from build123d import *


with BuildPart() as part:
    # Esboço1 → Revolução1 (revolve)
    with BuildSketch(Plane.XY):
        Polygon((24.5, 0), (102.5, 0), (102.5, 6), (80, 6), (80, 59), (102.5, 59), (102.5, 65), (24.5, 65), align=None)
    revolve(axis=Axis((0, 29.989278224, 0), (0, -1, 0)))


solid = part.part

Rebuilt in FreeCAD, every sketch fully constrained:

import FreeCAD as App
import Part
import Sketcher

doc = App.newDocument("Part")
body = doc.addObject("PartDesign::Body", "Body")

# Sketch on XY plane
sketch1 = body.newObject("Sketcher::SketchObject", "Sketch")
sketch1.AttachmentSupport = (doc.getObject("XY_Plane"), [""])
sketch1.MapMode = "FlatFace"
sketch1.addGeometry([
    Part.LineSegment(App.Vector(24, 0, 0), App.Vector(102, 0, 0)),  # 0
    Part.LineSegment(App.Vector(102, 0, 0), App.Vector(102, 6, 0)),  # 1
    Part.LineSegment(App.Vector(102, 6, 0), App.Vector(80, 6, 0)),  # 2
    Part.LineSegment(App.Vector(80, 6, 0), App.Vector(80, 59, 0)),  # 3
    Part.LineSegment(App.Vector(80, 59, 0), App.Vector(102, 59, 0)),  # 4
    Part.LineSegment(App.Vector(102, 59, 0), App.Vector(102, 65, 0)),  # 5
    Part.LineSegment(App.Vector(102, 65, 0), App.Vector(24, 65, 0)),  # 6
    Part.LineSegment(App.Vector(24, 65, 0), App.Vector(24, 0, 0)),  # 7
], False)
sketch1.addConstraint([
    Sketcher.Constraint("Coincident", 0, 2, 1, 1),
    Sketcher.Constraint("Coincident", 1, 2, 2, 1),
    Sketcher.Constraint("Coincident", 2, 2, 3, 1),
    Sketcher.Constraint("Coincident", 3, 2, 4, 1),
    Sketcher.Constraint("Coincident", 4, 2, 5, 1),
    Sketcher.Constraint("Coincident", 5, 2, 6, 1),
    Sketcher.Constraint("Coincident", 6, 2, 7, 1),
    Sketcher.Constraint("Coincident", 7, 2, 0, 1),
    Sketcher.Constraint("Horizontal", 0),
    Sketcher.Constraint("Vertical", 1),
    Sketcher.Constraint("Horizontal", 2),
    Sketcher.Constraint("Vertical", 3),
    Sketcher.Constraint("Horizontal", 4),
    Sketcher.Constraint("Vertical", 5),
    Sketcher.Constraint("Horizontal", 6),
    Sketcher.Constraint("Vertical", 7),
    Sketcher.Constraint("PointOnObject", 0, 2, -1),
    Sketcher.Constraint("Vertical", 1, 2, 4, 2),
    Sketcher.Constraint("Equal", 1, 5),
    Sketcher.Constraint("DistanceX", 0, 1, 0, 2, 78.0),
    Sketcher.Constraint("DistanceY", 1, 1, 1, 2, 6.0),
    Sketcher.Constraint("DistanceY", 3, 1, 3, 2, 53.0),
    Sketcher.Constraint("DistanceX", 2, 2, 2, 1, 22.5),
    Sketcher.Constraint("DistanceX", -1, 1, 2, 2, 80.0),
])
revolution = body.newObject("PartDesign::Revolution", "Revolution")
revolution.Profile = sketch1
revolution.ReferenceAxis = (sketch1, ["V_Axis"])
revolution.Angle = 360

doc.recompute()
